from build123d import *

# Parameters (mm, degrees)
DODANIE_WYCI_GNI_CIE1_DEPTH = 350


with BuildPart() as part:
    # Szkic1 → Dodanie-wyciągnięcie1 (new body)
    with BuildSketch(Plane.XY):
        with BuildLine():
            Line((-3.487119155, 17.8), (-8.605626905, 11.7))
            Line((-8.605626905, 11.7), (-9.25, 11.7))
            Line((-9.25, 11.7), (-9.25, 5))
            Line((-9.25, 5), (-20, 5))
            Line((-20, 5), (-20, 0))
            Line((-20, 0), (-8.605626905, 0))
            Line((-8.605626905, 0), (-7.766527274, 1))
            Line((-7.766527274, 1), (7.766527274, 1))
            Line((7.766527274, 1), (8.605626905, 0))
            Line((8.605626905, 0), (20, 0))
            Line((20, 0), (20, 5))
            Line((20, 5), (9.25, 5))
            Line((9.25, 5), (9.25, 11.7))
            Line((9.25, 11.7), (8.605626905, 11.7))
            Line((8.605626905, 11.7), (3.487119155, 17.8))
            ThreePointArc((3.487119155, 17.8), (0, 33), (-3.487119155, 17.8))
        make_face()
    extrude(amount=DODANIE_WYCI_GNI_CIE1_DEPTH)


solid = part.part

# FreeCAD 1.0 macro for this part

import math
import FreeCAD as App
import Part
import Sketcher
Q = App.Units.Quantity

doc = App.newDocument("Part")
body = doc.addObject("PartDesign::Body", "Body")

sketch1 = doc.addObject("Sketcher::SketchObject", "Sketch")
body.addObject(sketch1)
sketch1.AttachmentSupport = (doc.XY_Plane, [""])
sketch1.MapMode = "FlatFace"
sketch1.addGeometry([
    Part.LineSegment(App.Vector(-3.5, 17.8, 0), App.Vector(-8.6, 11.7, 0)),
    Part.LineSegment(App.Vector(-8.6, 11.7, 0), App.Vector(-9.2, 11.7, 0)),
    Part.LineSegment(App.Vector(-9.2, 11.7, 0), App.Vector(-9.2, 5, 0)),
    Part.LineSegment(App.Vector(-9.2, 5, 0), App.Vector(-20, 5, 0)),
    Part.LineSegment(App.Vector(-20, 5, 0), App.Vector(-20, 0, 0)),
    Part.LineSegment(App.Vector(-20, 0, 0), App.Vector(-8.6, 0, 0)),
    Part.LineSegment(App.Vector(-8.6, 0, 0), App.Vector(-7.8, 1, 0)),
    Part.LineSegment(App.Vector(-7.8, 1, 0), App.Vector(7.8, 1, 0)),
    Part.LineSegment(App.Vector(7.8, 1, 0), App.Vector(8.6, 0, 0)),
    Part.LineSegment(App.Vector(8.6, 0, 0), App.Vector(20, 0, 0)),
    Part.LineSegment(App.Vector(20, 0, 0), App.Vector(20, 5, 0)),
    Part.LineSegment(App.Vector(20, 5, 0), App.Vector(9.2, 5, 0)),
    Part.LineSegment(App.Vector(9.2, 5, 0), App.Vector(9.2, 11.7, 0)),
    Part.LineSegment(App.Vector(9.2, 11.7, 0), App.Vector(8.6, 11.7, 0)),
    Part.LineSegment(App.Vector(8.6, 11.7, 0), App.Vector(3.5, 17.8, 0)),
    Part.ArcOfCircle(Part.Circle(App.Vector(0, 25, 0), App.Vector(0, 0, 1), 8), math.radians(-64), math.radians(244)),
], False)
sketch1.addConstraint([
    Sketcher.Constraint("Coincident", 0, 2, 1, 1),
    Sketcher.Constraint("Coincident", 1, 2, 2, 1),
    Sketcher.Constraint("Coincident", 2, 2, 3, 1),
    Sketcher.Constraint("Coincident", 3, 2, 4, 1),
    Sketcher.Constraint("Coincident", 4, 2, 5, 1),
    Sketcher.Constraint("Coincident", 5, 2, 6, 1),
    Sketcher.Constraint("Coincident", 6, 2, 7, 1),
    Sketcher.Constraint("Coincident", 7, 2, 8, 1),
    Sketcher.Constraint("Coincident", 8, 2, 9, 1),
    Sketcher.Constraint("Coincident", 9, 2, 10, 1),
    Sketcher.Constraint("Coincident", 10, 2, 11, 1),
    Sketcher.Constraint("Coincident", 11, 2, 12, 1),
    Sketcher.Constraint("Coincident", 12, 2, 13, 1),
    Sketcher.Constraint("Coincident", 13, 2, 14, 1),
    Sketcher.Constraint("Coincident", 14, 2, 15, 1),
    Sketcher.Constraint("Coincident", 15, 2, 0, 1),
    Sketcher.Constraint("Horizontal", 1),
    Sketcher.Constraint("Vertical", 2),
    Sketcher.Constraint("Horizontal", 3),
    Sketcher.Constraint("Vertical", 4),
    Sketcher.Constraint("Horizontal", 5),
    Sketcher.Constraint("Horizontal", 7),
    Sketcher.Constraint("Horizontal", 9),
    Sketcher.Constraint("Vertical", 10),
    Sketcher.Constraint("Horizontal", 11),
    Sketcher.Constraint("Vertical", 12),
    Sketcher.Constraint("Horizontal", 13),
    Sketcher.Constraint("Symmetric", 5, 2, 8, 2, -1, 1),
    Sketcher.Constraint("Symmetric", 4, 2, 9, 2, -2),
    Sketcher.Constraint("Symmetric", 2, 2, 11, 2, -2),
    Sketcher.Constraint("Symmetric", 0, 2, 13, 2, -2),
    Sketcher.Constraint("Symmetric", 14, 2, 15, 2, -2),
    Sketcher.Constraint("Parallel", 0, 6),
    Sketcher.Constraint("Parallel", 8, 14),
    Sketcher.Constraint("Vertical", 0, 2, 5, 2),
    Sketcher.Constraint("Radius", 15, 8.0),
    Sketcher.Constraint("DistanceY", 4, 2, 4, 1, 5.0),
    Sketcher.Constraint("Angle", 0, Q("-130 deg")),
    Sketcher.Constraint("DistanceY", 2, 2, 2, 1, 6.7),
    Sketcher.Constraint("DistanceY", -1, 1, 15, 3, 25.0),
    Sketcher.Constraint("DistanceX", 3, 2, -1, 1, 20.0),
    Sketcher.Constraint("DistanceY", -1, 1, 6, 2, 1.0),
    Sketcher.Constraint("DistanceX", 3, 2, 3, 1, 10.75),
    Sketcher.Constraint("DistanceY", -1, 1, 14, 2, 17.8),
])
pad1 = doc.addObject("PartDesign::Pad", "Pad")
body.addObject(pad1)
pad1.Profile = sketch1
pad1.Length = 350

doc.recompute()
